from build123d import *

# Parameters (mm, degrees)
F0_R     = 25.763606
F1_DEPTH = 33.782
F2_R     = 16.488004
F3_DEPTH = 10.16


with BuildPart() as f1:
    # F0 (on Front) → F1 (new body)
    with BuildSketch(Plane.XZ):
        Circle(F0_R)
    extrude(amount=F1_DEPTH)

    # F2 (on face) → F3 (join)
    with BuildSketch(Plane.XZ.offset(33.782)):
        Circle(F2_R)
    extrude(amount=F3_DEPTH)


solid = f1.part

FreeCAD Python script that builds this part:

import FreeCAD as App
import Part
import Sketcher

V = App.Vector
Q = App.Units.Quantity

doc = App.newDocument("Part")
body = doc.addObject("PartDesign::Body", "Body")

# Sketch on XZ plane
sketch1 = body.newObject("Sketcher::SketchObject", "Sketch")
sketch1.AttachmentSupport = (doc.getObject("XZ_Plane"), [""])
sketch1.MapMode = "FlatFace"
sketch1.addGeometry(Part.Circle(V(0, 0, 0), V(0, 0, 1), 26), False)
sketch1.addConstraint(Sketcher.Constraint("Coincident", 0, 3, -1, 1))
sketch1.addConstraint(Sketcher.Constraint("Diameter", 0, Q("51.527212 mm")))
pad1 = body.newObject("PartDesign::Pad", "Pad")
pad1.Profile = sketch1
pad1.Length = Q("1.33 in")

# Sketch on XZ plane
sketch2 = body.newObject("Sketcher::SketchObject", "Sketch001")
sketch2.AttachmentSupport = (doc.getObject("XZ_Plane"), [""])
sketch2.MapMode = "FlatFace"
sketch2.AttachmentOffset = App.Placement(V(0, 0, 1.33 * 25.4), App.Rotation())
sketch2.addGeometry(Part.Circle(V(0, 0, 0), V(0, 0, 1), 16), False)
sketch2.addConstraint(Sketcher.Constraint("Coincident", 0, 3, -1, 1))
sketch2.addConstraint(Sketcher.Constraint("Diameter", 0, Q("32.976008 mm")))
pad2 = body.newObject("PartDesign::Pad", "Pad001")
pad2.Profile = sketch2
pad2.Length = Q("0.4 in")

doc.recompute()
